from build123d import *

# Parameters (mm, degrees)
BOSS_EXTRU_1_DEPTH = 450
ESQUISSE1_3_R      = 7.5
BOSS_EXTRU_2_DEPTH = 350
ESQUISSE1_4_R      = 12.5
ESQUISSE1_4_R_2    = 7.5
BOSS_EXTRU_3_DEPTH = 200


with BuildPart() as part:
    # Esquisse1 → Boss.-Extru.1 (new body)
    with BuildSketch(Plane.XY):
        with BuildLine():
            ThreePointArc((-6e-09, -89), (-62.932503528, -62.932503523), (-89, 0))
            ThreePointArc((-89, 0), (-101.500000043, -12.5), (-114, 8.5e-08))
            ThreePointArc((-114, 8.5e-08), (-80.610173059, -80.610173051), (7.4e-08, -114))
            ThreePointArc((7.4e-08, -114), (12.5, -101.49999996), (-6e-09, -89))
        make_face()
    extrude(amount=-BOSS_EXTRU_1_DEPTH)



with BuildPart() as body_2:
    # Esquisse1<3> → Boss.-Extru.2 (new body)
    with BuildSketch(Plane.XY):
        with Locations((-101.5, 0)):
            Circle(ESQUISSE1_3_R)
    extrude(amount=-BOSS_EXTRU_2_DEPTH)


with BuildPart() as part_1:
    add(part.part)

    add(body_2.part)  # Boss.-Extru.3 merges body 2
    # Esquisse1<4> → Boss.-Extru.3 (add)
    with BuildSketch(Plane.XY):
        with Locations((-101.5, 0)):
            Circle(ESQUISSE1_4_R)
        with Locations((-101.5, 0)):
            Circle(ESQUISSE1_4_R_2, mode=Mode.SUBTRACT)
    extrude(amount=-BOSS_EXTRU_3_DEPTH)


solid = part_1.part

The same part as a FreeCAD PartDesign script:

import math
import FreeCAD as App
import Part
import Sketcher

doc = App.newDocument("Part")
params = doc.addObject("Spreadsheet::Sheet", "Params")
for row, (alias, value) in enumerate([
    ("sketch1_radius", "89 mm"),
    ("sketch1_radius2", "114 mm"),
    ("pad1_length", "450 mm"),
    ("sketch2_diameter", "15 mm"),
    ("pad2_length", "350 mm"),
    ("sketch3_diameter", "25 mm"),
    ("sketch3_diameter2", "15 mm"),
    ("pad3_length", "200 mm"),
], start=1):
    params.set(f"A{row}", alias)
    params.set(f"B{row}", "=" + value)
    params.setAlias(f"B{row}", alias)

body = doc.addObject("PartDesign::Body", "Body")

sketch1 = doc.addObject("Sketcher::SketchObject", "Sketch")
body.addObject(sketch1)
sketch1.AttachmentSupport = (doc.XY_Plane, [""])
sketch1.MapMode = "FlatFace"
sketch1.addGeometry([
    Part.ArcOfCircle(Part.Circle(App.Vector(0, 0, 0), App.Vector(0, 0, 1), 89), math.radians(180), math.radians(270)),
    Part.ArcOfCircle(Part.Circle(App.Vector(-101.5, 0, 0), App.Vector(0, 0, 1), 12.5), math.radians(180), math.radians(360)),
    Part.ArcOfCircle(Part.Circle(App.Vector(0, 0, 0), App.Vector(0, 0, 1), 114), math.radians(180), math.radians(270)),
    Part.ArcOfCircle(Part.Circle(App.Vector(0, -101.5, 0), App.Vector(0, 0, 1), 12.5), math.radians(-90), math.radians(90)),
], False)
sketch1.addConstraint([
    Sketcher.Constraint("Tangent", 0, 1, 1, 2),
    Sketcher.Constraint("Tangent", 1, 1, 2, 1),
    Sketcher.Constraint("Tangent", 2, 2, 3, 1),
    Sketcher.Constraint("Tangent", 3, 2, 0, 2),
    Sketcher.Constraint("Coincident", 0, 3, -1, 1),
    Sketcher.Constraint("Coincident", 2, 3, -1, 1),
    Sketcher.Constraint("PointOnObject", 1, 3, -1),
    Sketcher.Constraint("PointOnObject", 3, 3, -2),
    Sketcher.Constraint("Radius", 0, 89.0),
    Sketcher.Constraint("Radius", 2, 114.0),
])
sketch1.setExpression("Constraints[8]", "Params.sketch1_radius")
sketch1.setExpression("Constraints[9]", "Params.sketch1_radius2")
pad1 = doc.addObject("PartDesign::Pad", "Pad")
body.addObject(pad1)
pad1.Profile = sketch1
pad1.setExpression("Length", "Params.pad1_length")
pad1.Reversed = True
body2 = doc.addObject("PartDesign::Body", "Body001")

sketch2 = doc.addObject("Sketcher::SketchObject", "Sketch001")
body2.addObject(sketch2)
sketch2.AttachmentSupport = (doc.getObject("XY_Plane001"), [""])
sketch2.MapMode = "FlatFace"
sketch2.addGeometry(Part.Circle(App.Vector(-101.5, 0, 0), App.Vector(0, 0, 1), 7.5), False)
sketch2.addConstraint([
    Sketcher.Constraint("PointOnObject", 0, 3, -1),
    Sketcher.Constraint("Diameter", 0, 15.0),
    Sketcher.Constraint("DistanceX", 0, 3, -1, 1, 101.5),
])
sketch2.setExpression("Constraints[1]", "Params.sketch2_diameter")
pad2 = doc.addObject("PartDesign::Pad", "Pad001")
body2.addObject(pad2)
pad2.Profile = sketch2
pad2.setExpression("Length", "Params.pad2_length")
pad2.Reversed = True
body.AllowCompound = True
doc.recompute()

boolean = doc.addObject("PartDesign::Boolean", "Boolean")
body.addObject(boolean)
boolean.Type = "Fuse"
boolean.addObjects([body2])

sketch3 = doc.addObject("Sketcher::SketchObject", "Sketch002")
body.addObject(sketch3)
sketch3.AttachmentSupport = (doc.XY_Plane, [""])
sketch3.MapMode = "FlatFace"
sketch3.addGeometry([
    Part.Circle(App.Vector(-101.5, 0, 0), App.Vector(0, 0, 1), 12.5),
    Part.Circle(App.Vector(-101.5, 0, 0), App.Vector(0, 0, 1), 7.5),
], False)
sketch3.addConstraint([
    Sketcher.Constraint("Coincident", 1, 3, 0, 3),
    Sketcher.Constraint("PointOnObject", 0, 3, -1),
    Sketcher.Constraint("Diameter", 0, 25.0),
    Sketcher.Constraint("Diameter", 1, 15.0),
    Sketcher.Constraint("DistanceX", 0, 3, -1, 1, 101.5),
])
sketch3.setExpression("Constraints[2]", "Params.sketch3_diameter")
sketch3.setExpression("Constraints[3]", "Params.sketch3_diameter2")
pad3 = doc.addObject("PartDesign::Pad", "Pad002")
body.addObject(pad3)
pad3.Profile = sketch3
pad3.setExpression("Length", "Params.pad3_length")
pad3.Reversed = True

doc.recompute()
